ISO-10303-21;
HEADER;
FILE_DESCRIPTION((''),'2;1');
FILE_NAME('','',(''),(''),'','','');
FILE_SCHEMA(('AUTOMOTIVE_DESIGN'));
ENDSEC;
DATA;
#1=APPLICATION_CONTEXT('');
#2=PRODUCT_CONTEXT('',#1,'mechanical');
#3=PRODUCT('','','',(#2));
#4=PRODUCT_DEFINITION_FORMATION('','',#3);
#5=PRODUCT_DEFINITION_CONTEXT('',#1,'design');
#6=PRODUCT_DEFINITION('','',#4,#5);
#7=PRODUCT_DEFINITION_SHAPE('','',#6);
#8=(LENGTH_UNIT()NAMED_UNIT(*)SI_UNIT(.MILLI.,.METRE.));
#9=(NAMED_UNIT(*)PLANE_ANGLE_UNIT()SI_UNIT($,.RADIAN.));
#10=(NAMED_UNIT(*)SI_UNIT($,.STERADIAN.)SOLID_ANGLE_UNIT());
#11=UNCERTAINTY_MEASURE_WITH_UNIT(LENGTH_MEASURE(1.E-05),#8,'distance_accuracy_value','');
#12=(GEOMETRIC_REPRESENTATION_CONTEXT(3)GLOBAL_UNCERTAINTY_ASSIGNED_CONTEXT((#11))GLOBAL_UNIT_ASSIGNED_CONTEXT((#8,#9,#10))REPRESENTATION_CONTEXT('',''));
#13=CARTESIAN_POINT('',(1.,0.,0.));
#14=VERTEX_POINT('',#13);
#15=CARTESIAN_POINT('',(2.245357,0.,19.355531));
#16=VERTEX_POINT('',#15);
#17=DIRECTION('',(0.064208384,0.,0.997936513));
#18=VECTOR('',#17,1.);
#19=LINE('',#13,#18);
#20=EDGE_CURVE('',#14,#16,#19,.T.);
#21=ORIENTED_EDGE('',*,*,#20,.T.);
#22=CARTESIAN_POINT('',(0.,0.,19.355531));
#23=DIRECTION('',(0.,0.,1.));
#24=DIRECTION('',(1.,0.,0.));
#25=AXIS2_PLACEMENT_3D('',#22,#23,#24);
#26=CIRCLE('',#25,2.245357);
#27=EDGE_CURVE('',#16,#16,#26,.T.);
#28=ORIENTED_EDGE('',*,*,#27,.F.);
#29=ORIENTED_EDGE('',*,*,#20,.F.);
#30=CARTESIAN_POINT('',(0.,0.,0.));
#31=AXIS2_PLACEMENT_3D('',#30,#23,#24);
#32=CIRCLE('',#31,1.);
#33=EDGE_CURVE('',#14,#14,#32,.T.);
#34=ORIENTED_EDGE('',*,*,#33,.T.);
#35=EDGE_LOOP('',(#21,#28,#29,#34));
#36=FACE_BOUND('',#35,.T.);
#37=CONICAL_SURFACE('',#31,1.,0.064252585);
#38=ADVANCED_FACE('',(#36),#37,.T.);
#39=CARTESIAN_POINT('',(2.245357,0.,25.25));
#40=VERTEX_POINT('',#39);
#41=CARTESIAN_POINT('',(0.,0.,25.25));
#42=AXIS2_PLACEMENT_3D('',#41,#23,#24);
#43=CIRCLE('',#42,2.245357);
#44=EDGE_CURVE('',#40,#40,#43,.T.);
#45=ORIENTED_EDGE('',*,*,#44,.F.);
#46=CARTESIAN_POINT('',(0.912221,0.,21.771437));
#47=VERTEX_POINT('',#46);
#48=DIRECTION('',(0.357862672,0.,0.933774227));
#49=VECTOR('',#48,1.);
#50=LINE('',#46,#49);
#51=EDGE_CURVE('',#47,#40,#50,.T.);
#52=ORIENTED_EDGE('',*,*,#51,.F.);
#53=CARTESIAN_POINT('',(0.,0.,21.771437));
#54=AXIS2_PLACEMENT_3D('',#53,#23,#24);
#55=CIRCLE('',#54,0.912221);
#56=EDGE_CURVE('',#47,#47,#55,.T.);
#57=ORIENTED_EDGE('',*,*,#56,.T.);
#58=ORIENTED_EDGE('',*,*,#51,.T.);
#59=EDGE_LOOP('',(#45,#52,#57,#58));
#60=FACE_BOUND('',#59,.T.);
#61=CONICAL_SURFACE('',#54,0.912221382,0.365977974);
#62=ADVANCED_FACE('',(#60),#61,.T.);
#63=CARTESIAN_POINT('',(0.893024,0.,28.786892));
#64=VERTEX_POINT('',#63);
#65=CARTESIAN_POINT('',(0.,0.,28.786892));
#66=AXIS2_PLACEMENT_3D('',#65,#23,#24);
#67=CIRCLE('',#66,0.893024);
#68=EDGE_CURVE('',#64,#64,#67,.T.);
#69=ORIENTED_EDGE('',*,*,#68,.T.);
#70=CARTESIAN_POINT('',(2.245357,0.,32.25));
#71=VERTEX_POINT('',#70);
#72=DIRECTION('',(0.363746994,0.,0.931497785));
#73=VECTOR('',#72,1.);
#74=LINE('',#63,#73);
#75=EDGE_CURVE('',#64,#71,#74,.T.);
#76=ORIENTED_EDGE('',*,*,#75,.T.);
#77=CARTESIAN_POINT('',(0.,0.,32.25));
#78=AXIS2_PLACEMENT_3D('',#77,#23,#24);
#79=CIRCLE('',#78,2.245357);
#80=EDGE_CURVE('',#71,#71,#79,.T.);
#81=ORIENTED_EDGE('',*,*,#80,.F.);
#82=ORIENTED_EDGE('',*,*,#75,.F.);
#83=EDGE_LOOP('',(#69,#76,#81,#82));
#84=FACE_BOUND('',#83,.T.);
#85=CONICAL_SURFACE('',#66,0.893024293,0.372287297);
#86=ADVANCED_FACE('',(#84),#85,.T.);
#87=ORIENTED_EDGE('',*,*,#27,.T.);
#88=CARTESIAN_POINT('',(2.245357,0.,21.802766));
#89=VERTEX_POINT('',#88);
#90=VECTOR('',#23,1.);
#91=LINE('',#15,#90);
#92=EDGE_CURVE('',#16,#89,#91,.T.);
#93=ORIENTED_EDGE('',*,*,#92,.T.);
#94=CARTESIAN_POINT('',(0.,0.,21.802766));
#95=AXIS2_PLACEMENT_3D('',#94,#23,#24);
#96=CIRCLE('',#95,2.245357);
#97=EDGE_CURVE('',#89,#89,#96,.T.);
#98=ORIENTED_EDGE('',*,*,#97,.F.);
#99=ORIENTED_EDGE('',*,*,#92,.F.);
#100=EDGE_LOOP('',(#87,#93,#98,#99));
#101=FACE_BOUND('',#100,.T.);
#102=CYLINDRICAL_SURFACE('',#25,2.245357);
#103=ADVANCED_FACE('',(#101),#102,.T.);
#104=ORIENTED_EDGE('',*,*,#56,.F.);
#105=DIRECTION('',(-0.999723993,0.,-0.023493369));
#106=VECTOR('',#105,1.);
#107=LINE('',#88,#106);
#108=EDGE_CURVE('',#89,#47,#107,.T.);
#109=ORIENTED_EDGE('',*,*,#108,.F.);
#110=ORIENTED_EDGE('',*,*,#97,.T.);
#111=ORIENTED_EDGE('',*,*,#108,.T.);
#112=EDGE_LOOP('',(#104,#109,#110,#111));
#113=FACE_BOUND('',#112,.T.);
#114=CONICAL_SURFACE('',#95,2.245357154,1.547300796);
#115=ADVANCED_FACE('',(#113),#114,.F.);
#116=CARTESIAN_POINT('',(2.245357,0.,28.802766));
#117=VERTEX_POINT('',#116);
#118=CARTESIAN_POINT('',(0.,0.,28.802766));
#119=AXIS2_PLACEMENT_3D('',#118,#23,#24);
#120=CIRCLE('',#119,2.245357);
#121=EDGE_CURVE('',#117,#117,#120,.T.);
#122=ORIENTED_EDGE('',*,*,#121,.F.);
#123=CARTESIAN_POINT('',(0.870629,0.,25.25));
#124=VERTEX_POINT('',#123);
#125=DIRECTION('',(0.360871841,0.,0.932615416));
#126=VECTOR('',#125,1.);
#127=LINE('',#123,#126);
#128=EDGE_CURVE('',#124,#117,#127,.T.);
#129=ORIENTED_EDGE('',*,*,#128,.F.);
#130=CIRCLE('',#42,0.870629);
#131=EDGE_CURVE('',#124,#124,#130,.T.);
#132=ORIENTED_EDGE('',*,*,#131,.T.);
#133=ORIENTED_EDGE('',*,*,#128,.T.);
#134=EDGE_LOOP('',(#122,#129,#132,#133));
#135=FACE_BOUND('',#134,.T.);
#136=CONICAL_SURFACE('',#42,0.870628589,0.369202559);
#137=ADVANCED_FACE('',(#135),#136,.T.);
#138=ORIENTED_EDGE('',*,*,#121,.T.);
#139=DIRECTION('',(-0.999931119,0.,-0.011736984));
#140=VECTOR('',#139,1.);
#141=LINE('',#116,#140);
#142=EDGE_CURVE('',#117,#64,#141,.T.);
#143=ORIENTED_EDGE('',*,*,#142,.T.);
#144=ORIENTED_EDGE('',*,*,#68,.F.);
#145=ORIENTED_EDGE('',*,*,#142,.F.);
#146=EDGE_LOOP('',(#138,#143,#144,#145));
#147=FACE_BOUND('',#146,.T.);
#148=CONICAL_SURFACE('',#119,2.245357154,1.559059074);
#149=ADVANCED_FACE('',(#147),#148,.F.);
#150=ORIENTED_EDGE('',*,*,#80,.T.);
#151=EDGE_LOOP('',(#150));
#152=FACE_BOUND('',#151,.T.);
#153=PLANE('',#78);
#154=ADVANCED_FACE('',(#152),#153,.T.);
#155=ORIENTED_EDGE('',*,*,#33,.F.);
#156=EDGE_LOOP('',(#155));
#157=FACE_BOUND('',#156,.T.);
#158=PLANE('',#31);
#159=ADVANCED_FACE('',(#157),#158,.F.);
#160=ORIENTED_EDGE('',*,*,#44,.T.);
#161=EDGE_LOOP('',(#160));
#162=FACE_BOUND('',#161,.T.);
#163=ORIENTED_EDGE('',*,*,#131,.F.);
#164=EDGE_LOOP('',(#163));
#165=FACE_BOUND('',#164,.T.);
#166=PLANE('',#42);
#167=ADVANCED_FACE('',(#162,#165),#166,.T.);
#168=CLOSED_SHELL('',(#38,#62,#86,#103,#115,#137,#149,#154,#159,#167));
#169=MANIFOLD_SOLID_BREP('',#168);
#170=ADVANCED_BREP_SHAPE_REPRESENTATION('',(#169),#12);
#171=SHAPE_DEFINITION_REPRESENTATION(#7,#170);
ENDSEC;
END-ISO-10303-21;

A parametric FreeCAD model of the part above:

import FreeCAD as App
import Part
import Sketcher

V = App.Vector
Q = App.Units.Quantity


def add_polygon(sketch, points):
    """Adds a closed chain of lines whose ends are joined by coincident constraints."""
    first, n = sketch.GeometryCount, len(points)
    for a, b in zip(points, points[1:] + points[:1]):
        sketch.addGeometry(Part.LineSegment(App.Vector(*a, 0), App.Vector(*b, 0)), False)
    for i in range(n):
        sketch.addConstraint(Sketcher.Constraint("Coincident", first + i, 2, first + (i + 1) % n, 1))

doc = App.newDocument("Part")
body = doc.addObject("PartDesign::Body", "Body")

sketch1 = body.newObject("Sketcher::SketchObject", "Sketch")
sketch1.AttachmentSupport = (doc.getObject("XZ_Plane"), [""])
sketch1.MapMode = "FlatFace"
add_polygon(sketch1, [(2.245357, 19.355531), (2.245357, 21.802766), (0.912221, 21.771437), (2.245357, 25.25), (0.870629, 25.25), (2.245357, 28.802766), (0.893024, 28.786892), (2.245357, 32.25), (0, 32.25), (0, 0), (1, 0)])
sketch1.addConstraint([
    Sketcher.Constraint("Vertical", 0),
    Sketcher.Constraint("Horizontal", 3),
    Sketcher.Constraint("Horizontal", 7),
    Sketcher.Constraint("Vertical", 8),
    Sketcher.Constraint("Horizontal", 9),
    Sketcher.Constraint("Coincident", 8, 2, -1, 1),
    Sketcher.Constraint("Vertical", 0, 2, 2, 2),
    Sketcher.Constraint("Vertical", 2, 2, 4, 2),
    Sketcher.Constraint("Vertical", 4, 2, 6, 2),
    Sketcher.Constraint("DistanceX", 9, 1, 9, 2, Q("1 mm")),
    Sketcher.Constraint("DistanceY", 0, 2, 4, 2, Q("7 mm")),
    Sketcher.Constraint("DistanceY", 2, 2, 6, 2, Q("7 mm")),
    Sketcher.Constraint("DistanceY", 8, 2, 8, 1, Q("32.25 mm")),
    Sketcher.Constraint("DistanceX", 3, 2, 3, 1, Q("1.374729 mm")),
    Sketcher.Constraint("Distance", 2, Q("3.725272 mm")),
    Sketcher.Constraint("DistanceX", 7, 2, 7, 1, Q("2.245357 mm")),
    Sketcher.Constraint("DistanceY", 0, 1, 0, 2, Q("2.447234 mm")),
    Sketcher.Constraint("DistanceX", -1, 1, 1, 2, Q("0.912221 mm")),
    Sketcher.Constraint("DistanceY", -1, 1, 10, 2, Q("19.355531 mm")),
    Sketcher.Constraint("Distance", 5, Q("1.352426 mm")),
    Sketcher.Constraint("Distance", 6, Q("3.717784 mm")),
])
revolution = body.newObject("PartDesign::Revolution", "Revolution")
revolution.Profile = sketch1
revolution.ReferenceAxis = (sketch1, ["V_Axis"])
revolution.Angle = 360

doc.recompute()
